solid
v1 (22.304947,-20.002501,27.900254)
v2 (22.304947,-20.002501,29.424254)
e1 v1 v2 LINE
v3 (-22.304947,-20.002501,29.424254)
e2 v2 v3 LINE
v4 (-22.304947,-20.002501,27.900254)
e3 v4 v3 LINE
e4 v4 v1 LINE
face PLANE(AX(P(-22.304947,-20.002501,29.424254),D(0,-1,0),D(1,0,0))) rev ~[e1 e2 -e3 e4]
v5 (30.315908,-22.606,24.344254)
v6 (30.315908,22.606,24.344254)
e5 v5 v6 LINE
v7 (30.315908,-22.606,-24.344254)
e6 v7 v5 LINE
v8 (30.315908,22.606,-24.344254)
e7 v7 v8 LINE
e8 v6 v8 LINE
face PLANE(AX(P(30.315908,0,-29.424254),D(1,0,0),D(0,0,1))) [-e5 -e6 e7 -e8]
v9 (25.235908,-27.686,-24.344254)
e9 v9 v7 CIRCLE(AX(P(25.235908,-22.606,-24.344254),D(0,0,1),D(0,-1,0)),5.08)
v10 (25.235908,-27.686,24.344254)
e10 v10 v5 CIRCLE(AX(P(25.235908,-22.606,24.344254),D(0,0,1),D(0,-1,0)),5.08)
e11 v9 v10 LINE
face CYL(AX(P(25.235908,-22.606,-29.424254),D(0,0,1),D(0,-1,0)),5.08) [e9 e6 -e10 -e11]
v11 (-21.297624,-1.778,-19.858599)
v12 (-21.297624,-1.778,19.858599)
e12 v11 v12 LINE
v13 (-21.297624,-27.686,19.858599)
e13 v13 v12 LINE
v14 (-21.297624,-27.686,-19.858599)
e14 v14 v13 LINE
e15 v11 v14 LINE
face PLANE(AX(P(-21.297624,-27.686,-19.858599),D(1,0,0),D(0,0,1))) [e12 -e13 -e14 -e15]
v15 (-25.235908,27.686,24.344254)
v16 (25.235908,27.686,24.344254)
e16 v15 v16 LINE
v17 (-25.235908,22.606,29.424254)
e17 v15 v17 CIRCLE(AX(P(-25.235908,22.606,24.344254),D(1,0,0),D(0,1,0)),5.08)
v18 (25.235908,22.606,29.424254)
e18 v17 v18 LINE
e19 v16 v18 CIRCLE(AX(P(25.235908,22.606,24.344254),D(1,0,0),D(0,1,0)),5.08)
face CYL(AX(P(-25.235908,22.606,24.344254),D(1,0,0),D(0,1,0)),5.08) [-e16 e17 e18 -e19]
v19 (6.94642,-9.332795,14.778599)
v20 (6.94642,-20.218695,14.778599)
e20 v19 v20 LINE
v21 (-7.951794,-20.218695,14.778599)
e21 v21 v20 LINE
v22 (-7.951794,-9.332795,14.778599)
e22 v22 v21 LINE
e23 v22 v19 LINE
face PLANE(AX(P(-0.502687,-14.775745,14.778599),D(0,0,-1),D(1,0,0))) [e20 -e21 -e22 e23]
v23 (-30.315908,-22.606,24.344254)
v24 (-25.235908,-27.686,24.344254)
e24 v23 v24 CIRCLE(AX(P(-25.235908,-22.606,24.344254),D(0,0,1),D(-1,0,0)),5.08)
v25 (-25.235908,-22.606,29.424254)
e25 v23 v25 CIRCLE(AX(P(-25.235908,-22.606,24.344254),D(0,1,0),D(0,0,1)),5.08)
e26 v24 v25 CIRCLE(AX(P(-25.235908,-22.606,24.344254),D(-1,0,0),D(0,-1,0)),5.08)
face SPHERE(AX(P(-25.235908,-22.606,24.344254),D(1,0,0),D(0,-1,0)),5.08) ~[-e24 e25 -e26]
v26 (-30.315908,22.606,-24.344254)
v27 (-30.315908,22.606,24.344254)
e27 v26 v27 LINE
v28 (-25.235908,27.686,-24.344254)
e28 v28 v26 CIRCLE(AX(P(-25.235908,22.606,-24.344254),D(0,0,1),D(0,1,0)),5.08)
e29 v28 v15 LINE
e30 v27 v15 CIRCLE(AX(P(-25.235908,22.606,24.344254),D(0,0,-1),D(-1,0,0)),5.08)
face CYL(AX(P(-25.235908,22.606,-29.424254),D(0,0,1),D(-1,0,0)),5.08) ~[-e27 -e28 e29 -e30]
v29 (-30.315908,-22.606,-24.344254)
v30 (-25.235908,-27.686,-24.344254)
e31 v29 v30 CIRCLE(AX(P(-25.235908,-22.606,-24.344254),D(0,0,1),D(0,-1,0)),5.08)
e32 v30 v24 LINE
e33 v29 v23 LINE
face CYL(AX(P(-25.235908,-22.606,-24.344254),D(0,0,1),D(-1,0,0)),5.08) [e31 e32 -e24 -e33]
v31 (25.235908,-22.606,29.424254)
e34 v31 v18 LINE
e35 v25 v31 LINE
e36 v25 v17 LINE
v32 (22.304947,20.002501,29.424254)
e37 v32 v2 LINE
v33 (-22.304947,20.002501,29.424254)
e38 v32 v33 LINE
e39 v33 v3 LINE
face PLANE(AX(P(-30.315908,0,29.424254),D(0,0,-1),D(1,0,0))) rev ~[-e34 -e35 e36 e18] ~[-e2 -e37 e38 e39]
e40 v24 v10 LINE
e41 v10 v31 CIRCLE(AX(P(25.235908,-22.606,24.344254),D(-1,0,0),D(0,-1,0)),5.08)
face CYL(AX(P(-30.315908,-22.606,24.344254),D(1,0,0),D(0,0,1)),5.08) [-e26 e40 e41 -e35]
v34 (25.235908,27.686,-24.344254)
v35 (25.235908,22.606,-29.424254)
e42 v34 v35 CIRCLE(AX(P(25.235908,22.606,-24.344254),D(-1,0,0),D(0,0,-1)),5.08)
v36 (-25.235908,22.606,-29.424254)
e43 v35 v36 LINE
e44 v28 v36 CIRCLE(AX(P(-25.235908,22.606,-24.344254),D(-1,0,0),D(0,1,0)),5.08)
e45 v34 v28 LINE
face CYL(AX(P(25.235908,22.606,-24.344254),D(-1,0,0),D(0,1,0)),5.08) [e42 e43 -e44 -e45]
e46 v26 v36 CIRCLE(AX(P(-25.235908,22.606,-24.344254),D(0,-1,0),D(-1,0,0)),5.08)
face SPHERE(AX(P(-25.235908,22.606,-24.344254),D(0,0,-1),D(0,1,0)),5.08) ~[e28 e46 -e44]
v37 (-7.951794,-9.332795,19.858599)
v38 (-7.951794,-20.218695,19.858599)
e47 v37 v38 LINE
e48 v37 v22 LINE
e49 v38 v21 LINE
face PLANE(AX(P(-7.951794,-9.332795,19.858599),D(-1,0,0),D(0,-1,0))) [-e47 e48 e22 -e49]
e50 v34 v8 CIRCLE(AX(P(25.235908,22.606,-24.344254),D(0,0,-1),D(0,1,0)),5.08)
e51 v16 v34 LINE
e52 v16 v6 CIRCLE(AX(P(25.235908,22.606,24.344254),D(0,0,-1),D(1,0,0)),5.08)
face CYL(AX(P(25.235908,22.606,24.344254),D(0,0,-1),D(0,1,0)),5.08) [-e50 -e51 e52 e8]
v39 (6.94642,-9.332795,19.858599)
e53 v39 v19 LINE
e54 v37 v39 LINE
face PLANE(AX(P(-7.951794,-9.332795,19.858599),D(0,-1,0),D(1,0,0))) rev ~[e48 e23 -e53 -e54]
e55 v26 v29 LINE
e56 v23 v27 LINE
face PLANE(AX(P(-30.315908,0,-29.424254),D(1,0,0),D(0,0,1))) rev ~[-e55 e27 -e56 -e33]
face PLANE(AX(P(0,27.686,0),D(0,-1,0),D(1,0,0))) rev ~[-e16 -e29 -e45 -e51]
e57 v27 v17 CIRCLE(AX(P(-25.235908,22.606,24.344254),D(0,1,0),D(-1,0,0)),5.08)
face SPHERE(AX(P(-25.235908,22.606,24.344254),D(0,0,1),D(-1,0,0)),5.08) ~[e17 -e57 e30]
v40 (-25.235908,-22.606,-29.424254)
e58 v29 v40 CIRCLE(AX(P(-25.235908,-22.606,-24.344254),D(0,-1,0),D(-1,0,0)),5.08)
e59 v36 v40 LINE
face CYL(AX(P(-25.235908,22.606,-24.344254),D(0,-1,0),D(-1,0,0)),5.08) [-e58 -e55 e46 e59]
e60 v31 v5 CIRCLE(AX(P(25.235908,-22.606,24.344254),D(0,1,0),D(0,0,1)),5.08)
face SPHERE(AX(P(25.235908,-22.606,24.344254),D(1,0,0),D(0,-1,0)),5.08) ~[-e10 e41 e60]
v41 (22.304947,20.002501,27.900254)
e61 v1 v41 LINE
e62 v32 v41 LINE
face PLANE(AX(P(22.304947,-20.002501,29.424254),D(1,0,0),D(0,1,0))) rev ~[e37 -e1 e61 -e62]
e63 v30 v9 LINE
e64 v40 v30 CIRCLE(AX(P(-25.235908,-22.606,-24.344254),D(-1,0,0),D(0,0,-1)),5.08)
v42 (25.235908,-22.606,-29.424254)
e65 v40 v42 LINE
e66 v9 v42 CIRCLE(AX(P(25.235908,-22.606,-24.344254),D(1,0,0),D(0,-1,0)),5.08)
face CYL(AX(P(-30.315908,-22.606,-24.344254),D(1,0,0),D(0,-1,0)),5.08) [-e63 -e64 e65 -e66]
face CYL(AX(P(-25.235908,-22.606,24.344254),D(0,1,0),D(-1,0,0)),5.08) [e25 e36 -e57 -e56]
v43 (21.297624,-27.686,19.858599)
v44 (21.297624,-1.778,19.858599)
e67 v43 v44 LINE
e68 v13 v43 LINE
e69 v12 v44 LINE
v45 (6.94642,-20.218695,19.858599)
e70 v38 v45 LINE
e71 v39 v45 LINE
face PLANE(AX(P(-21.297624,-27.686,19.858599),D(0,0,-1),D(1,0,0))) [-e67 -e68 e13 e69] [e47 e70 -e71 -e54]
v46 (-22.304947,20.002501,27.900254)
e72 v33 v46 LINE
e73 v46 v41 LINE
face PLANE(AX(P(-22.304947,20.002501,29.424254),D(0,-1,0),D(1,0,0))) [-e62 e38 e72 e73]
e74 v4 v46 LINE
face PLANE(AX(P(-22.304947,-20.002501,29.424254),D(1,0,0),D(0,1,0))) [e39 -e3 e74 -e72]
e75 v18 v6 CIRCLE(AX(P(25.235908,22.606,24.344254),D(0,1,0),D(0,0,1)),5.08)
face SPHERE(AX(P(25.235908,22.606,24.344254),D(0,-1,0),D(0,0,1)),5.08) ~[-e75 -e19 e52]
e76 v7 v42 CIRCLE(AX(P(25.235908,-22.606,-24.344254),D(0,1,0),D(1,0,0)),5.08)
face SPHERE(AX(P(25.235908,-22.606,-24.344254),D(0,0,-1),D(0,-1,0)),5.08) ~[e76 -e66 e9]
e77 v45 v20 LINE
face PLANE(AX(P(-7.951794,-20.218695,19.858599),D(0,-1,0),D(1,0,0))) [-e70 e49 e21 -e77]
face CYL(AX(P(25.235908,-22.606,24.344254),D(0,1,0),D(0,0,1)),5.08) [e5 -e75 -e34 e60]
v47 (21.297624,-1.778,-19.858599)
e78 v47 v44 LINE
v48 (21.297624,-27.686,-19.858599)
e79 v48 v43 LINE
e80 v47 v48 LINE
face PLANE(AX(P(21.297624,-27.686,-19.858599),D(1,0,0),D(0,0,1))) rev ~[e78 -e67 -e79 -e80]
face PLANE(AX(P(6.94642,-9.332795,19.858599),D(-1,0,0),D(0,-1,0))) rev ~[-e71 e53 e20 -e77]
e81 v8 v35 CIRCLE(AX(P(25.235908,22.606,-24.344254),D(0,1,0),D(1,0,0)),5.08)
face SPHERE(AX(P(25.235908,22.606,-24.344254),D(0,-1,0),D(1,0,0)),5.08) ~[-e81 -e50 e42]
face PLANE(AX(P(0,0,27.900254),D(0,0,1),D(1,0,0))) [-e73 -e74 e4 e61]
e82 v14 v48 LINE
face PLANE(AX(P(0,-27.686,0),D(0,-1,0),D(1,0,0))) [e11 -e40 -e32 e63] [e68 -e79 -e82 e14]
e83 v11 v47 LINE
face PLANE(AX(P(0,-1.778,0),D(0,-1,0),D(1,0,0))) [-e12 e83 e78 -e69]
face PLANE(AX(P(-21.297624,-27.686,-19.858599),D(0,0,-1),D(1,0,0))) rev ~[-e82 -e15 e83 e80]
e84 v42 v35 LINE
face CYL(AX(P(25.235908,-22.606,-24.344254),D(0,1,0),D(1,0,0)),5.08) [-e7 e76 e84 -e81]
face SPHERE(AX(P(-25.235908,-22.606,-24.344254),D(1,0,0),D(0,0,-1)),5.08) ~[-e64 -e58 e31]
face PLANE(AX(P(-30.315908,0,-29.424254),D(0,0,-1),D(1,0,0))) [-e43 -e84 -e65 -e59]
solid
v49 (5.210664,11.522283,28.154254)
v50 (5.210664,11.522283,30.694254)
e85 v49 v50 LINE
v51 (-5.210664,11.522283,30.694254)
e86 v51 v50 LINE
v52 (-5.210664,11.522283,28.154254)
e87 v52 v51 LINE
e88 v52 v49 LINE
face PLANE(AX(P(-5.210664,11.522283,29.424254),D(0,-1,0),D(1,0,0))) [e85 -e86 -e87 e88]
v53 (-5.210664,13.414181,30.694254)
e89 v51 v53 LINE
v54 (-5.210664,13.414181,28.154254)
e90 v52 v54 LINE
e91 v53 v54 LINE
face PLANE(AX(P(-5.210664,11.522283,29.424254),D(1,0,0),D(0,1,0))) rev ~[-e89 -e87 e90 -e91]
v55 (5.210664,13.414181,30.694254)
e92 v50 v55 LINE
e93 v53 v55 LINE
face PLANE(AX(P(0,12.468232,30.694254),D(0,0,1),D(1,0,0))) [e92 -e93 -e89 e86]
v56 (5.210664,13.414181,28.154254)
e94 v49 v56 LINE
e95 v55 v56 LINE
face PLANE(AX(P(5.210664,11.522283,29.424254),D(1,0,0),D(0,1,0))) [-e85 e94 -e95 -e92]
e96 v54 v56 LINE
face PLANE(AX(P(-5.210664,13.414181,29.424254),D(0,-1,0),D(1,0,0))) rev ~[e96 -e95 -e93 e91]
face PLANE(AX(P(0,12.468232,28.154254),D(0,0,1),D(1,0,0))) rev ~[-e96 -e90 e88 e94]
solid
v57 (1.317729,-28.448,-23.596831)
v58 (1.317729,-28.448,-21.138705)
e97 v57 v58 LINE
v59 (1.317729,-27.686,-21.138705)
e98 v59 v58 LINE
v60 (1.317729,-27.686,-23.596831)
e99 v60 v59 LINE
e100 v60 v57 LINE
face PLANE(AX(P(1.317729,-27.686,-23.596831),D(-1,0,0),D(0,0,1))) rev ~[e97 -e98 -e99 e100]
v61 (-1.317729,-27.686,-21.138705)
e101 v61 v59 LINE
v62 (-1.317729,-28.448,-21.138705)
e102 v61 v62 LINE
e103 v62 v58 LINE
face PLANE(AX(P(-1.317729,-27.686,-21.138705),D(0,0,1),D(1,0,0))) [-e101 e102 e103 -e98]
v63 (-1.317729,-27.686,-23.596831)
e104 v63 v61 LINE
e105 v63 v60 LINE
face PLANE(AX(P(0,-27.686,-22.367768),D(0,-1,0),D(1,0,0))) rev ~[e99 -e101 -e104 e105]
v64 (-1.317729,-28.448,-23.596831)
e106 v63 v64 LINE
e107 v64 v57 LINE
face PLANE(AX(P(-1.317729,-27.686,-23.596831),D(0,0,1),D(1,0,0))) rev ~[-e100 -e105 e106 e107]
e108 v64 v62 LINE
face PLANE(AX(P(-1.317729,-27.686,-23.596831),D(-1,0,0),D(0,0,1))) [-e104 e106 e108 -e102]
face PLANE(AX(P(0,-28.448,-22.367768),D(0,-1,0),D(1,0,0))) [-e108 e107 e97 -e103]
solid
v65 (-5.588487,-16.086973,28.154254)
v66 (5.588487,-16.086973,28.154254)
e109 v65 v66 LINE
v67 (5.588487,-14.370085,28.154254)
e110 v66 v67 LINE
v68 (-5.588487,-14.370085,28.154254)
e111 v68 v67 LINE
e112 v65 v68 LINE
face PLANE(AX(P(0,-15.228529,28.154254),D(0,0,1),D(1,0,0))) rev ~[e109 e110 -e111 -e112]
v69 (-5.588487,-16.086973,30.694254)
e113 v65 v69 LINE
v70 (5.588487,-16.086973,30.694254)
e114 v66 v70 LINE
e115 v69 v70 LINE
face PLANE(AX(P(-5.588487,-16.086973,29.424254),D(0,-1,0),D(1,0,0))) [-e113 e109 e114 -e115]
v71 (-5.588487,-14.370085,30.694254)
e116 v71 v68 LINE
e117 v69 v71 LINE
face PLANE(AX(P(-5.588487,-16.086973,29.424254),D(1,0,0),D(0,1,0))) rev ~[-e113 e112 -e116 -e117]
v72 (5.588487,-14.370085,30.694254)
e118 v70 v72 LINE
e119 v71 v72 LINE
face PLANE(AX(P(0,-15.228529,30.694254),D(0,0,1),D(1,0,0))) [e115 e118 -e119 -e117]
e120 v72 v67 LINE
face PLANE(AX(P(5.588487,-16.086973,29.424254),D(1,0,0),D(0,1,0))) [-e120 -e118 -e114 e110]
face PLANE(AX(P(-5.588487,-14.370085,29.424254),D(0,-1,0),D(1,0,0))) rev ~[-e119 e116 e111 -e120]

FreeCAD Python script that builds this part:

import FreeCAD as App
import Part
import Sketcher
from FreeCAD import Vector
Q = App.Units.Quantity


def edges_at(feature, points):
    """Names of the edges that pass closest to the given points."""
    edges = feature.Shape.Edges
    near = lambda p: min(range(len(edges)), key=lambda i: edges[i].distToShape(Part.Vertex(*p))[0])
    return sorted({f"Edge{near(p) + 1}" for p in points})

doc = App.newDocument("Part")
body = doc.addObject("PartDesign::Body", "Body")

# Sketch on XZ plane
sketch1 = body.newObject("Sketcher::SketchObject", "Sketch")
sketch1.AttachmentSupport = (doc.getObject("XZ_Plane"), [""])
sketch1.MapMode = "FlatFace"
sketch1.addGeometry([
    Part.LineSegment(Vector(-30.315908, 29.424254, 0), Vector(-30.315908, -29.424254, 0)),
    Part.LineSegment(Vector(-30.315908, -29.424254, 0), Vector(30.315908, -29.424254, 0)),
    Part.LineSegment(Vector(30.315908, -29.424254, 0), Vector(30.315908, 29.424254, 0)),
    Part.LineSegment(Vector(30.315908, 29.424254, 0), Vector(-30.315908, 29.424254, 0)),
], False)
sketch1.addConstraint([
    Sketcher.Constraint("Coincident", 0, 2, 1, 1),
    Sketcher.Constraint("Coincident", 1, 2, 2, 1),
    Sketcher.Constraint("Coincident", 2, 2, 3, 1),
    Sketcher.Constraint("Coincident", 3, 2, 0, 1),
    Sketcher.Constraint("Vertical", 0),
    Sketcher.Constraint("Horizontal", 1),
    Sketcher.Constraint("Vertical", 2),
    Sketcher.Constraint("Horizontal", 3),
    Sketcher.Constraint("Symmetric", 0, 2, 2, 2, -1, 1),
    Sketcher.Constraint("DistanceY", 0, 2, 0, 1, 58.848508),
    Sketcher.Constraint("DistanceX", 1, 1, 1, 2, 60.631816),
])
pad1 = body.newObject("PartDesign::Pad", "Pad")
pad1.Profile = sketch1
pad1.Length = Q("2.18 in")
pad1.Midplane = True

# Sketch on XZ plane
sketch2 = body.newObject("Sketcher::SketchObject", "Sketch001")
sketch2.AttachmentSupport = (doc.getObject("XZ_Plane"), [""])
sketch2.MapMode = "FlatFace"
sketch2.AttachmentOffset = App.Placement(Vector(0, 0, 1.09 * 25.4), App.Rotation())
sketch2.addGeometry([
    Part.LineSegment(Vector(-21.297624, 19.858599, 0), Vector(-21.297624, -19.858599, 0)),
    Part.LineSegment(Vector(-21.297624, -19.858599, 0), Vector(21.297624, -19.858599, 0)),
    Part.LineSegment(Vector(21.297624, -19.858599, 0), Vector(21.297624, 19.858599, 0)),
    Part.LineSegment(Vector(21.297624, 19.858599, 0), Vector(-21.297624, 19.858599, 0)),
], False)
sketch2.addConstraint([
    Sketcher.Constraint("Coincident", 0, 2, 1, 1),
    Sketcher.Constraint("Coincident", 1, 2, 2, 1),
    Sketcher.Constraint("Coincident", 2, 2, 3, 1),
    Sketcher.Constraint("Coincident", 3, 2, 0, 1),
    Sketcher.Constraint("Vertical", 0),
    Sketcher.Constraint("Horizontal", 1),
    Sketcher.Constraint("Vertical", 2),
    Sketcher.Constraint("Horizontal", 3),
    Sketcher.Constraint("Symmetric", 0, 2, 2, 2, -1, 1),
    Sketcher.Constraint("DistanceY", 0, 2, 0, 1, 39.717198),
    Sketcher.Constraint("DistanceX", 1, 1, 1, 2, 42.595248),
])
pocket1 = body.newObject("PartDesign::Pocket", "Pocket")
pocket1.Profile = sketch2
pocket1.Length = Q("2.04 in")
pocket1.Midplane = True
doc.recompute()

fillet = body.newObject("PartDesign::Fillet", "Fillet")
fillet.Base = (pocket1, edges_at(pocket1, [(0, -27.686, 29.424)]))
fillet.Radius = Q("0.2 in")
doc.recompute()

fillet2 = body.newObject("PartDesign::Fillet", "Fillet001")
fillet2.Base = (fillet, edges_at(fillet, [(30.316, 2.54, 29.424)]))
fillet2.Radius = Q("0.2 in")
doc.recompute()

fillet3 = body.newObject("PartDesign::Fillet", "Fillet002")
fillet3.Base = (fillet2, edges_at(fillet2, [(-2.54, -27.686, -29.424)]))
fillet3.Radius = Q("0.2 in")
doc.recompute()

fillet4 = body.newObject("PartDesign::Fillet", "Fillet003")
fillet4.Base = (fillet3, edges_at(fillet3, [(-30.316, 27.686, 0)]))
fillet4.Radius = Q("0.2 in")
doc.recompute()

fillet5 = body.newObject("PartDesign::Fillet", "Fillet004")
fillet5.Base = (fillet4, edges_at(fillet4, [(-30.316, 0, -29.424)]))
fillet5.Radius = Q("0.2 in")

# Sketch on XY plane
sketch3 = body.newObject("Sketcher::SketchObject", "Sketch002")
sketch3.AttachmentSupport = (doc.getObject("XY_Plane"), [""])
sketch3.MapMode = "FlatFace"
sketch3.AttachmentOffset = App.Placement(Vector(0, 0, 19.858599), App.Rotation())
sketch3.addGeometry([
    Part.LineSegment(Vector(-7.951794, -20.218695, 0), Vector(-7.951794, -9.332795, 0)),
    Part.LineSegment(Vector(-7.951794, -9.332795, 0), Vector(6.94642, -9.332795, 0)),
    Part.LineSegment(Vector(6.94642, -9.332795, 0), Vector(6.94642, -20.218695, 0)),
    Part.LineSegment(Vector(6.94642, -20.218695, 0), Vector(-7.951794, -20.218695, 0)),
], False)
sketch3.addConstraint([
    Sketcher.Constraint("Coincident", 0, 2, 1, 1),
    Sketcher.Constraint("Coincident", 1, 2, 2, 1),
    Sketcher.Constraint("Coincident", 2, 2, 3, 1),
    Sketcher.Constraint("Coincident", 3, 2, 0, 1),
    Sketcher.Constraint("Vertical", 0),
    Sketcher.Constraint("Horizontal", 1),
    Sketcher.Constraint("Vertical", 2),
    Sketcher.Constraint("Horizontal", 3),
    Sketcher.Constraint("DistanceY", 0, 1, 0, 2, 10.885901),
    Sketcher.Constraint("DistanceX", 1, 1, 1, 2, 14.898214),
    Sketcher.Constraint("DistanceX", -1, 1, 1, 2, 6.94642),
    Sketcher.Constraint("DistanceY", 0, 2, -1, 1, 9.332795),
])
pad2 = body.newObject("PartDesign::Pad", "Pad001")
pad2.Profile = sketch3
pad2.Length = Q("0.2 in")
pad2.Reversed = True

# Sketch on XY plane
sketch4 = body.newObject("Sketcher::SketchObject", "Sketch003")
sketch4.AttachmentSupport = (doc.getObject("XY_Plane"), [""])
sketch4.MapMode = "FlatFace"
sketch4.AttachmentOffset = App.Placement(Vector(0, 0, 29.424254), App.Rotation())
sketch4.addGeometry([
    Part.LineSegment(Vector(-22.304947, 20.002501, 0), Vector(-22.304947, -20.002501, 0)),
    Part.LineSegment(Vector(-22.304947, -20.002501, 0), Vector(22.304947, -20.002501, 0)),
    Part.LineSegment(Vector(22.304947, -20.002501, 0), Vector(22.304947, 20.002501, 0)),
    Part.LineSegment(Vector(22.304947, 20.002501, 0), Vector(-22.304947, 20.002501, 0)),
], False)
sketch4.addConstraint([
    Sketcher.Constraint("Coincident", 0, 2, 1, 1),
    Sketcher.Constraint("Coincident", 1, 2, 2, 1),
    Sketcher.Constraint("Coincident", 2, 2, 3, 1),
    Sketcher.Constraint("Coincident", 3, 2, 0, 1),
    Sketcher.Constraint("Vertical", 0),
    Sketcher.Constraint("Horizontal", 1),
    Sketcher.Constraint("Vertical", 2),
    Sketcher.Constraint("Horizontal", 3),
    Sketcher.Constraint("Symmetric", 0, 2, 2, 2, -1, 1),
    Sketcher.Constraint("DistanceY", 0, 2, 0, 1, Q("1.5750001 in")),
    Sketcher.Constraint("DistanceX", 1, 1, 1, 2, 44.609894),
])
pocket2 = body.newObject("PartDesign::Pocket", "Pocket001")
pocket2.Profile = sketch4
pocket2.Length = Q("0.12 in")
pocket2.Midplane = True
body2 = doc.addObject("PartDesign::Body", "Body001")

# Sketch on XY plane
sketch5 = body2.newObject("Sketcher::SketchObject", "Sketch004")
sketch5.AttachmentSupport = (doc.getObject("XY_Plane001"), [""])
sketch5.MapMode = "FlatFace"
sketch5.AttachmentOffset = App.Placement(Vector(0, 0, 29.424254), App.Rotation())
sketch5.addGeometry([
    Part.LineSegment(Vector(-5.588487, -14.370085, 0), Vector(-5.588487, -16.086973, 0)),
    Part.LineSegment(Vector(-5.588487, -16.086973, 0), Vector(5.588487, -16.086973, 0)),
    Part.LineSegment(Vector(5.588487, -16.086973, 0), Vector(5.588487, -14.370085, 0)),
    Part.LineSegment(Vector(5.588487, -14.370085, 0), Vector(-5.588487, -14.370085, 0)),
], False)
sketch5.addConstraint([
    Sketcher.Constraint("Coincident", 0, 2, 1, 1),
    Sketcher.Constraint("Coincident", 1, 2, 2, 1),
    Sketcher.Constraint("Coincident", 2, 2, 3, 1),
    Sketcher.Constraint("Coincident", 3, 2, 0, 1),
    Sketcher.Constraint("Vertical", 0),
    Sketcher.Constraint("Horizontal", 1),
    Sketcher.Constraint("Vertical", 2),
    Sketcher.Constraint("Horizontal", 3),
    Sketcher.Constraint("DistanceY", 0, 2, 0, 1, 1.716889),
    Sketcher.Constraint("DistanceX", 1, 1, 1, 2, 11.176974),
    Sketcher.Constraint("DistanceX", 0, 2, -1, 1, 5.588487),
    Sketcher.Constraint("DistanceY", 0, 2, -1, 1, 16.086973),
])
pad3 = body2.newObject("PartDesign::Pad", "Pad002")
pad3.Profile = sketch5
pad3.Length = Q("0.1 in")
pad3.Midplane = True
body3 = doc.addObject("PartDesign::Body", "Body002")

# Sketch on XY plane
sketch6 = body3.newObject("Sketcher::SketchObject", "Sketch005")
sketch6.AttachmentSupport = (doc.getObject("XY_Plane002"), [""])
sketch6.MapMode = "FlatFace"
sketch6.AttachmentOffset = App.Placement(Vector(0, 0, 29.424254), App.Rotation())
sketch6.addGeometry([
    Part.LineSegment(Vector(-5.210664, 13.414181, 0), Vector(-5.210664, 11.522283, 0)),
    Part.LineSegment(Vector(-5.210664, 11.522283, 0), Vector(5.210664, 11.522283, 0)),
    Part.LineSegment(Vector(5.210664, 11.522283, 0), Vector(5.210664, 13.414181, 0)),
    Part.LineSegment(Vector(5.210664, 13.414181, 0), Vector(-5.210664, 13.414181, 0)),
], False)
sketch6.addConstraint([
    Sketcher.Constraint("Coincident", 0, 2, 1, 1),
    Sketcher.Constraint("Coincident", 1, 2, 2, 1),
    Sketcher.Constraint("Coincident", 2, 2, 3, 1),
    Sketcher.Constraint("Coincident", 3, 2, 0, 1),
    Sketcher.Constraint("Vertical", 0),
    Sketcher.Constraint("Horizontal", 1),
    Sketcher.Constraint("Vertical", 2),
    Sketcher.Constraint("Horizontal", 3),
    Sketcher.Constraint("DistanceX", 1, 1, 1, 2, 10.421328),
    Sketcher.Constraint("DistanceY", 0, 2, 0, 1, 1.891898),
    Sketcher.Constraint("DistanceY", -1, 1, 2, 2, 13.414181),
    Sketcher.Constraint("DistanceX", 0, 2, -1, 1, 5.210664),
])
pad4 = body3.newObject("PartDesign::Pad", "Pad003")
pad4.Profile = sketch6
pad4.Length = Q("0.1 in")
pad4.Midplane = True
body4 = doc.addObject("PartDesign::Body", "Body003")

# Sketch on XZ plane
sketch7 = body4.newObject("Sketcher::SketchObject", "Sketch006")
sketch7.AttachmentSupport = (doc.getObject("XZ_Plane003"), [""])
sketch7.MapMode = "FlatFace"
sketch7.AttachmentOffset = App.Placement(Vector(0, 0, 1.09 * 25.4), App.Rotation())
sketch7.addGeometry([
    Part.LineSegment(Vector(-1.317729, -21.138705, 0), Vector(-1.317729, -23.596831, 0)),
    Part.LineSegment(Vector(-1.317729, -23.596831, 0), Vector(1.317729, -23.596831, 0)),
    Part.LineSegment(Vector(1.317729, -23.596831, 0), Vector(1.317729, -21.138705, 0)),
    Part.LineSegment(Vector(1.317729, -21.138705, 0), Vector(-1.317729, -21.138705, 0)),
], False)
sketch7.addConstraint([
    Sketcher.Constraint("Coincident", 0, 2, 1, 1),
    Sketcher.Constraint("Coincident", 1, 2, 2, 1),
    Sketcher.Constraint("Coincident", 2, 2, 3, 1),
    Sketcher.Constraint("Coincident", 3, 2, 0, 1),
    Sketcher.Constraint("Vertical", 0),
    Sketcher.Constraint("Horizontal", 1),
    Sketcher.Constraint("Vertical", 2),
    Sketcher.Constraint("Horizontal", 3),
    Sketcher.Constraint("DistanceX", 1, 1, 1, 2, 2.635458),
    Sketcher.Constraint("DistanceY", 0, 2, 0, 1, 2.458126),
    Sketcher.Constraint("DistanceX", 0, 2, -1, 1, 1.317729),
    Sketcher.Constraint("DistanceY", 0, 2, -1, 1, 23.596831),
])
pad5 = body4.newObject("PartDesign::Pad", "Pad004")
pad5.Profile = sketch7
pad5.Length = Q("0.03 in")

doc.recompute()
